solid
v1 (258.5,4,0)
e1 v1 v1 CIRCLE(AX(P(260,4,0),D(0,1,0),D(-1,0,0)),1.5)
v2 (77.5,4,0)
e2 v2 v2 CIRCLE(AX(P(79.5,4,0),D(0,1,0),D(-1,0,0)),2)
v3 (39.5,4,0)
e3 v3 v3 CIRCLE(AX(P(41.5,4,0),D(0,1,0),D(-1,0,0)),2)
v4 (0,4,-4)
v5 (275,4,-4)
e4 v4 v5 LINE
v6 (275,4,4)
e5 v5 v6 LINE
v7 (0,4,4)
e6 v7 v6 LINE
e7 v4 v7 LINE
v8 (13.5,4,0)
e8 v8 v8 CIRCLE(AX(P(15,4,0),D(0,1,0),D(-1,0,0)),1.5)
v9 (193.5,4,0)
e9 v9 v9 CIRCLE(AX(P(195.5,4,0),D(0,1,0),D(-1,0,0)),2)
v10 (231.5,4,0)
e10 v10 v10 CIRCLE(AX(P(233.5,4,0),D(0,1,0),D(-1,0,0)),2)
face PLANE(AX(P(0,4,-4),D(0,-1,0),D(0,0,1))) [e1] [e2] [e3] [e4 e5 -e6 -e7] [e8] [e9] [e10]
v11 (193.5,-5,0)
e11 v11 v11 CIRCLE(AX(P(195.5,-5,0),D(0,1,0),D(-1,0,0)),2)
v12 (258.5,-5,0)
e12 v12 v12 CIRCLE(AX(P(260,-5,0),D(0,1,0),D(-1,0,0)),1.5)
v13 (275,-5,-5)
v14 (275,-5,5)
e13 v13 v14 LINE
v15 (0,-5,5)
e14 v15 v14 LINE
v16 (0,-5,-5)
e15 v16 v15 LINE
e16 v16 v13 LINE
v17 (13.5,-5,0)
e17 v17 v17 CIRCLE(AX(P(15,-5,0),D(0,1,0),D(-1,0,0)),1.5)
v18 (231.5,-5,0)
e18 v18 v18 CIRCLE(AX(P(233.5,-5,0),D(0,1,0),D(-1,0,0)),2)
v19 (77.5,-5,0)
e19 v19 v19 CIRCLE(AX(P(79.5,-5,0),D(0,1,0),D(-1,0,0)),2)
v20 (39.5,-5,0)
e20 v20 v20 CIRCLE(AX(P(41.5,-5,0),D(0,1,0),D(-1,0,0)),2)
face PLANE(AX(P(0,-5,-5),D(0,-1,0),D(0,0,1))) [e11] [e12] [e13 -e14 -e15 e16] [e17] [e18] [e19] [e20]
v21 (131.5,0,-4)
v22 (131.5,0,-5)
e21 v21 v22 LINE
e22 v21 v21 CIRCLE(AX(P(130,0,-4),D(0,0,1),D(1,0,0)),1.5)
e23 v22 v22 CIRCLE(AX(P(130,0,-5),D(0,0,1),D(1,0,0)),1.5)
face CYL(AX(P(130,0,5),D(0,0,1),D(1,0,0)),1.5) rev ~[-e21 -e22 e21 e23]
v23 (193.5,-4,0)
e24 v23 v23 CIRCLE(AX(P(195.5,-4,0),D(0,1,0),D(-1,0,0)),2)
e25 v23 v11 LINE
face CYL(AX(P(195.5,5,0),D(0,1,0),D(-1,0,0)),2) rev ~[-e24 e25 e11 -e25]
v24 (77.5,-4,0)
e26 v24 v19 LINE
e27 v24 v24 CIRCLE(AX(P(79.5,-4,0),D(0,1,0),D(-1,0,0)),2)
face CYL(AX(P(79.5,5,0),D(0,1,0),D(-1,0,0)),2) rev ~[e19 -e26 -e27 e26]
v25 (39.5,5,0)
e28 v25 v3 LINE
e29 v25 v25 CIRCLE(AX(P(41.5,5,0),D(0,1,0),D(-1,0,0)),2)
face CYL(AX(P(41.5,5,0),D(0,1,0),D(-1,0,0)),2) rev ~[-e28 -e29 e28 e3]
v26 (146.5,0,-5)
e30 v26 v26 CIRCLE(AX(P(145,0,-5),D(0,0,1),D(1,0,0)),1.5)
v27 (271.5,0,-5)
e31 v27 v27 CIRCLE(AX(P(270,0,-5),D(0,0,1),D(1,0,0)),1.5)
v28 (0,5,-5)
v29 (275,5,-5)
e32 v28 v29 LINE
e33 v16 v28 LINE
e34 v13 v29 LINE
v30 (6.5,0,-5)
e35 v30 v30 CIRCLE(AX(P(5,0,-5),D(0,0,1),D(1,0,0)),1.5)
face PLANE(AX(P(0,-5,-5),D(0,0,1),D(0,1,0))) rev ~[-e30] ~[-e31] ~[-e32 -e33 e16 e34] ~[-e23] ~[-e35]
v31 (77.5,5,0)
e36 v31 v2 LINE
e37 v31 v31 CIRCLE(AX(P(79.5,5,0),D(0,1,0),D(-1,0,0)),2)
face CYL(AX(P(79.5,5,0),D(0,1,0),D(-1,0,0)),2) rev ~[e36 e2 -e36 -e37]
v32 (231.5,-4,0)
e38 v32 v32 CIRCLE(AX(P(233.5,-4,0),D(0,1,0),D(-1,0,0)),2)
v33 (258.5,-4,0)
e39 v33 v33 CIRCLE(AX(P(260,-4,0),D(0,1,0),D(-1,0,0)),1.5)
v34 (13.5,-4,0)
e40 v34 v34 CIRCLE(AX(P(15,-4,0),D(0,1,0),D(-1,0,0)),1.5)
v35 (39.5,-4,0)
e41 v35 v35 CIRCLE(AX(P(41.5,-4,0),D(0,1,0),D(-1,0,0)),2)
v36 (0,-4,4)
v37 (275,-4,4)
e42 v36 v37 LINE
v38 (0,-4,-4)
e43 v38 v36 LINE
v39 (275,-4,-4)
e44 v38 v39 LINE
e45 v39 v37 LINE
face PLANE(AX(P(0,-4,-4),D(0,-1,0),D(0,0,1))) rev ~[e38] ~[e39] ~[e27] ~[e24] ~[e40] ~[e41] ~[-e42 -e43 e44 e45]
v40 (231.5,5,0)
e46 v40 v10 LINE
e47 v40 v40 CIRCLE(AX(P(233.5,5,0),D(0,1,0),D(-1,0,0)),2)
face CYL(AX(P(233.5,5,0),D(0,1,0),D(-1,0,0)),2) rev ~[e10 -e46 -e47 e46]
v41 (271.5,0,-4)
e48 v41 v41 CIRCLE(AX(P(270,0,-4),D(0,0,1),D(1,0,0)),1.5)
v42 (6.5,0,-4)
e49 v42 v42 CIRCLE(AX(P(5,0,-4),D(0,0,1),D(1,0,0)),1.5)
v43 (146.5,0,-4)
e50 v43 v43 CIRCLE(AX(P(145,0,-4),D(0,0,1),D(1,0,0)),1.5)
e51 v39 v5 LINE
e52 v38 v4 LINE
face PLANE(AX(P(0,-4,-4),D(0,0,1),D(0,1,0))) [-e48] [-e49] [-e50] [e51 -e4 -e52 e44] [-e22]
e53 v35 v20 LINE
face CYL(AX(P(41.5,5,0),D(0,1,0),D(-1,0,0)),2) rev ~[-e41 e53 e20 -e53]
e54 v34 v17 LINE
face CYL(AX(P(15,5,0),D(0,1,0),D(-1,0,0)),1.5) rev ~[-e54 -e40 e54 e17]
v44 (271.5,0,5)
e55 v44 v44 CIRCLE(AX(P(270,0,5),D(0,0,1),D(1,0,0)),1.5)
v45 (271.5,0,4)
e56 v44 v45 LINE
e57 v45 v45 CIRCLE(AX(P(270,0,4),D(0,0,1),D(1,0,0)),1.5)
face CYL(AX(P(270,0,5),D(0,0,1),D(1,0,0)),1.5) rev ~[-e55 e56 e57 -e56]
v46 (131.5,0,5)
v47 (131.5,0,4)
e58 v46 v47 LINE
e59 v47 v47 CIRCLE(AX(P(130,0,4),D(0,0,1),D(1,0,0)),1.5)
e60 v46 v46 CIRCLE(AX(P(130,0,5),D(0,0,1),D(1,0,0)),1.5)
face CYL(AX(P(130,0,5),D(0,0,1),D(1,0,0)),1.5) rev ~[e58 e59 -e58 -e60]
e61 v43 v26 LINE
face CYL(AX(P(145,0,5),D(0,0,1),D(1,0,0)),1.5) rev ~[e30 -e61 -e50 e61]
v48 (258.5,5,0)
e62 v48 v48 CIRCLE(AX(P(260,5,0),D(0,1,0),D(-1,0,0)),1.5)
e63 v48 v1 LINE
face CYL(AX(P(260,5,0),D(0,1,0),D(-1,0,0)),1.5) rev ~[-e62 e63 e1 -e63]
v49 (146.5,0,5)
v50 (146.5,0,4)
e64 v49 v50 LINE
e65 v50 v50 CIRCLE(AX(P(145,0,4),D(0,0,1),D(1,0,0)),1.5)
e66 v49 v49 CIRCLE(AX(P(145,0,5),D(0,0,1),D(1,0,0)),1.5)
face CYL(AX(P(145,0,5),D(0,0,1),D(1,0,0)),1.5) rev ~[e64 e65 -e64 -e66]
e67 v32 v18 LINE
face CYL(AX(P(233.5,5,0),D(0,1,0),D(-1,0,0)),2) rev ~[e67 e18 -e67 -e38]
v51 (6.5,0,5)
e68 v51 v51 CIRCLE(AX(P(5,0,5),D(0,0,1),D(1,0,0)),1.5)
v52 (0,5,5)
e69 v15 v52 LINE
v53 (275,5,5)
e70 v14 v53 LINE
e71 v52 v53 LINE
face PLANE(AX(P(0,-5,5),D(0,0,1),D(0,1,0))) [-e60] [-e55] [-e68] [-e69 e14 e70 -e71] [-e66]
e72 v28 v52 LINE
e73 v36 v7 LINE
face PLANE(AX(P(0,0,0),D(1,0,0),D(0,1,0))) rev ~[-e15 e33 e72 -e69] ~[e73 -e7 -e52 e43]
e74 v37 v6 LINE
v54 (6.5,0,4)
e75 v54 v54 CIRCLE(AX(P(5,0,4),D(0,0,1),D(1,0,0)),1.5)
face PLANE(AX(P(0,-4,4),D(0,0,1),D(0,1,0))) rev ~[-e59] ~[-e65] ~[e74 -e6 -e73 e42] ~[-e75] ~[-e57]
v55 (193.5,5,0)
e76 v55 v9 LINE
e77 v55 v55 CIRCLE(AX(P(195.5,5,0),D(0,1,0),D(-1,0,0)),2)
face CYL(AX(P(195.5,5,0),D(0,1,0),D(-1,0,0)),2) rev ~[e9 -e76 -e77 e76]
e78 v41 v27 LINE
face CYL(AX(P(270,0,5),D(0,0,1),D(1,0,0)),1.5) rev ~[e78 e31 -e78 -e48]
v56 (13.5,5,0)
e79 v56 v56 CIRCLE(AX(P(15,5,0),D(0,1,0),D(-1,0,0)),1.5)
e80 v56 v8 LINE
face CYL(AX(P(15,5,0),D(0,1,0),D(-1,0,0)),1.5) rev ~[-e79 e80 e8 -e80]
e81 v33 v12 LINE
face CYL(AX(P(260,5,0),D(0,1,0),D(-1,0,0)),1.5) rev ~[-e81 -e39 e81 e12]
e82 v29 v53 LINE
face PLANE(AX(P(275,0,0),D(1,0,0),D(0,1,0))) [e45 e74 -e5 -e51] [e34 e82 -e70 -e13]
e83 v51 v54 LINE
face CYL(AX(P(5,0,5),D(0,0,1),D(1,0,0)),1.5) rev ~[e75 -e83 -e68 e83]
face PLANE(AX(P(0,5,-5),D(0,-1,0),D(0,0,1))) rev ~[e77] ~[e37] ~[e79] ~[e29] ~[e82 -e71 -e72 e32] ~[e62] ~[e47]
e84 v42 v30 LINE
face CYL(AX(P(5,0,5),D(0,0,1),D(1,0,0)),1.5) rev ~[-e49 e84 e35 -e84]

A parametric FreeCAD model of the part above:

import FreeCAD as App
import Part
import Sketcher
from FreeCAD import Vector


def add_polygon(sketch, points):
    """Adds a closed chain of lines whose ends are joined by coincident constraints."""
    first, n = sketch.GeometryCount, len(points)
    for a, b in zip(points, points[1:] + points[:1]):
        sketch.addGeometry(Part.LineSegment(App.Vector(*a, 0), App.Vector(*b, 0)), False)
    for i in range(n):
        sketch.addConstraint(Sketcher.Constraint("Coincident", first + i, 2, first + (i + 1) % n, 1))

doc = App.newDocument("Part")
body = doc.addObject("PartDesign::Body", "Body")

sketch1 = body.newObject("Sketcher::SketchObject", "Sketch")
sketch1.AttachmentSupport = (doc.getObject("YZ_Plane"), [""])
sketch1.MapMode = "FlatFace"
add_polygon(sketch1, [(-5, 5), (-5, -5), (5, -5), (5, 5)])
add_polygon(sketch1, [(4, -4), (-4, -4), (-4, 4), (4, 4)])
sketch1.addConstraint([
    Sketcher.Constraint("Vertical", 0),
    Sketcher.Constraint("Horizontal", 1),
    Sketcher.Constraint("Vertical", 2),
    Sketcher.Constraint("Horizontal", 3),
    Sketcher.Constraint("Horizontal", 4),
    Sketcher.Constraint("Vertical", 5),
    Sketcher.Constraint("Horizontal", 6),
    Sketcher.Constraint("Vertical", 7),
    Sketcher.Constraint("Symmetric", 0, 2, 2, 2, -1, 1),
    Sketcher.Constraint("Symmetric", 4, 2, 6, 2, -1, 1),
    Sketcher.Constraint("Equal", 3, 0),
    Sketcher.Constraint("Equal", 6, 5),
    Sketcher.Constraint("DistanceX", 1, 1, 1, 2, 10.0),
    Sketcher.Constraint("DistanceX", 4, 2, 4, 1, 8.0),
])
pad1 = body.newObject("PartDesign::Pad", "Pad")
pad1.Profile = sketch1
pad1.Length = 275

sketch2 = body.newObject("Sketcher::SketchObject", "Sketch001")
sketch2.AttachmentSupport = (doc.getObject("XY_Plane"), [""])
sketch2.MapMode = "FlatFace"
sketch2.AttachmentOffset = App.Placement(Vector(0, 0, 5), App.Rotation())
sketch2.addGeometry([
    Part.Circle(Vector(130, 0, 0), Vector(0, 0, 1), 1.5),
    Part.Circle(Vector(5, 0, 0), Vector(0, 0, 1), 1.5),
    Part.Circle(Vector(145, 0, 0), Vector(0, 0, 1), 1.5),
    Part.Circle(Vector(270, 0, 0), Vector(0, 0, 1), 1.5),
], False)
sketch2.addConstraint([
    Sketcher.Constraint("Equal", 0, 1),
    Sketcher.Constraint("Equal", 1, 2),
    Sketcher.Constraint("Equal", 2, 3),
    Sketcher.Constraint("PointOnObject", 0, 3, -1),
    Sketcher.Constraint("PointOnObject", 1, 3, -1),
    Sketcher.Constraint("PointOnObject", 2, 3, -1),
    Sketcher.Constraint("PointOnObject", 3, 3, -1),
    Sketcher.Constraint("Diameter", 0, 3.0),
    Sketcher.Constraint("DistanceX", -1, 1, 0, 3, 130.0),
    Sketcher.Constraint("DistanceX", -1, 1, 1, 3, 5.0),
    Sketcher.Constraint("DistanceX", -1, 1, 2, 3, 145.0),
    Sketcher.Constraint("DistanceX", -1, 1, 3, 3, 270.0),
])
pocket1 = body.newObject("PartDesign::Pocket", "Pocket")
pocket1.Profile = sketch2
pocket1.Length = 25

sketch3 = body.newObject("Sketcher::SketchObject", "Sketch002")
sketch3.AttachmentSupport = (doc.getObject("XZ_Plane"), [""])
sketch3.MapMode = "FlatFace"
sketch3.AttachmentOffset = App.Placement(Vector(0, 0, -5), App.Rotation())
sketch3.addGeometry([
    Part.Circle(Vector(233.5, 0, 0), Vector(0, 0, 1), 2),
    Part.Circle(Vector(195.5, 0, 0), Vector(0, 0, 1), 2),
    Part.Circle(Vector(79.5, 0, 0), Vector(0, 0, 1), 2),
    Part.Circle(Vector(41.5, 0, 0), Vector(0, 0, 1), 2),
    Part.Circle(Vector(260, 0, 0), Vector(0, 0, 1), 1.5),
    Part.Circle(Vector(15, 0, 0), Vector(0, 0, 1), 1.5),
], False)
sketch3.addConstraint([
    Sketcher.Constraint("Equal", 0, 1),
    Sketcher.Constraint("Equal", 1, 2),
    Sketcher.Constraint("Equal", 2, 3),
    Sketcher.Constraint("Equal", 4, 5),
    Sketcher.Constraint("PointOnObject", 0, 3, -1),
    Sketcher.Constraint("PointOnObject", 1, 3, -1),
    Sketcher.Constraint("PointOnObject", 2, 3, -1),
    Sketcher.Constraint("PointOnObject", 3, 3, -1),
    Sketcher.Constraint("PointOnObject", 4, 3, -1),
    Sketcher.Constraint("PointOnObject", 5, 3, -1),
    Sketcher.Constraint("Diameter", 0, 4.0),
    Sketcher.Constraint("Diameter", 4, 3.0),
    Sketcher.Constraint("DistanceX", -1, 1, 4, 3, 260.0),
    Sketcher.Constraint("DistanceX", -1, 1, 5, 3, 15.0),
    Sketcher.Constraint("DistanceX", 1, 3, 0, 3, 38.0),
    Sketcher.Constraint("DistanceX", 2, 3, 1, 3, 116.0),
    Sketcher.Constraint("DistanceX", 3, 3, 2, 3, 38.0),
    Sketcher.Constraint("DistanceX", -1, 1, 0, 3, 233.5),
])
pocket2 = body.newObject("PartDesign::Pocket", "Pocket001")
pocket2.Profile = sketch3
pocket2.Length = 25
pocket2.Reversed = True

doc.recompute()
